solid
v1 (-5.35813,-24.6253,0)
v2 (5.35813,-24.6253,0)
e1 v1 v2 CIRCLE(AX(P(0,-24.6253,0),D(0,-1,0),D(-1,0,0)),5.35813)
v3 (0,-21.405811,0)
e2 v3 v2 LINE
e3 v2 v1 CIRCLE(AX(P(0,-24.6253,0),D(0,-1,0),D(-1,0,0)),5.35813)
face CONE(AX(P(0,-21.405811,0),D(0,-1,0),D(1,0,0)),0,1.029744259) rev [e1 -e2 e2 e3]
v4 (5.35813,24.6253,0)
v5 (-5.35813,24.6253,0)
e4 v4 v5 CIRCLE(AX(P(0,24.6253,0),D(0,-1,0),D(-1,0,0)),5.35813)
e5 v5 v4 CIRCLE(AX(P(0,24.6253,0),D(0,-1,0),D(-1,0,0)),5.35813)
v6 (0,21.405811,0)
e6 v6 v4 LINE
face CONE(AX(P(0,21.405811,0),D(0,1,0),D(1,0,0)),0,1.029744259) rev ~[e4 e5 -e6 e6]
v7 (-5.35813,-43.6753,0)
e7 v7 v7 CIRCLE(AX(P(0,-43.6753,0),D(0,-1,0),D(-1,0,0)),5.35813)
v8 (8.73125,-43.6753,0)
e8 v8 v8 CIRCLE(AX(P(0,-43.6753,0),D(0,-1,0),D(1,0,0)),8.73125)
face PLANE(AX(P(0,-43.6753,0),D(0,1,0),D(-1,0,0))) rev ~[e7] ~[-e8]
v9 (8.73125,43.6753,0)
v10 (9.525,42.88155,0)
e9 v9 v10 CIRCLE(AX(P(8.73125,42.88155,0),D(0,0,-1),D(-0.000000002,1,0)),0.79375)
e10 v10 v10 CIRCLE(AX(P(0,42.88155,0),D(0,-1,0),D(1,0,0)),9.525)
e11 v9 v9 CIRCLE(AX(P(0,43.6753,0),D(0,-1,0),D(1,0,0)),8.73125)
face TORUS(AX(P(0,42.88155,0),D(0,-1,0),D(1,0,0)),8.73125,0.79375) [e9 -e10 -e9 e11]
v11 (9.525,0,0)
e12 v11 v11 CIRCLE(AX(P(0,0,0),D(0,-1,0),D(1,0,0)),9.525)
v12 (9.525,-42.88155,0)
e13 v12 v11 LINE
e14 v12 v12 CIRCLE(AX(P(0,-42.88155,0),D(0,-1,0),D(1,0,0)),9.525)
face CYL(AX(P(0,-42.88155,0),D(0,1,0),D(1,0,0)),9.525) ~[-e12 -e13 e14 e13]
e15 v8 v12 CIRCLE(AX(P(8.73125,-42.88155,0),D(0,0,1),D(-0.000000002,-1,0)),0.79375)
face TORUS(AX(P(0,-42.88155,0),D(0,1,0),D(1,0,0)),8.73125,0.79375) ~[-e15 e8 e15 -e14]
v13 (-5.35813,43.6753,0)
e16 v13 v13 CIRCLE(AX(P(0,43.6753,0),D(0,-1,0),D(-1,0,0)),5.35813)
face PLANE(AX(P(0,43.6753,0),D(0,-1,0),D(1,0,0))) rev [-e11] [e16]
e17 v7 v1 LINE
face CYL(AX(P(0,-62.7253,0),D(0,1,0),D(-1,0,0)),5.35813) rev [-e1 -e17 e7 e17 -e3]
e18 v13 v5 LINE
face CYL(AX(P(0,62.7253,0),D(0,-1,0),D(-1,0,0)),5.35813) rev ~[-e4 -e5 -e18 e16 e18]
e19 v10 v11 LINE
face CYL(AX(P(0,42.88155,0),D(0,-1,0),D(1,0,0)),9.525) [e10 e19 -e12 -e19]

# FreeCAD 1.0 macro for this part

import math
import FreeCAD as App
import Part
import Sketcher

V = App.Vector
Q = App.Units.Quantity

doc = App.newDocument("Part")
body = doc.addObject("PartDesign::Body", "Body")

# Sketch on XY plane
sketch1 = body.newObject("Sketcher::SketchObject", "Sketch")
sketch1.AttachmentSupport = (doc.getObject("XY_Plane"), [""])
sketch1.MapMode = "FlatFace"
sketch1.addGeometry(Part.LineSegment(V(0, 43.6753, 0), V(0, 0, 0)), False)
sketch1.addGeometry(Part.LineSegment(V(0, 0, 0), V(9.525, 0, 0)), False)
sketch1.addGeometry(Part.LineSegment(V(9.525, 0, 0), V(9.525, 42.88155, 0)), False)
sketch1.addGeometry(Part.ArcOfCircle(Part.Circle(V(8.73125, 42.88155, 0), V(0, 0, 1), 0.79375), math.radians(0), math.radians(90)), False)
sketch1.addGeometry(Part.LineSegment(V(8.73125, 43.6753, 0), V(0, 43.6753, 0)), False)
sketch1.addConstraint(Sketcher.Constraint("Coincident", 0, 2, 1, 1))
sketch1.addConstraint(Sketcher.Constraint("Coincident", 1, 2, 2, 1))
sketch1.addConstraint(Sketcher.Constraint("Tangent", 2, 2, 3, 1))
sketch1.addConstraint(Sketcher.Constraint("Tangent", 3, 2, 4, 1))
sketch1.addConstraint(Sketcher.Constraint("Coincident", 4, 2, 0, 1))
sketch1.addConstraint(Sketcher.Constraint("Vertical", 0))
sketch1.addConstraint(Sketcher.Constraint("Horizontal", 1))
sketch1.addConstraint(Sketcher.Constraint("Vertical", 2))
sketch1.addConstraint(Sketcher.Constraint("Horizontal", 4))
sketch1.addConstraint(Sketcher.Constraint("Coincident", 0, 2, -1, 1))
sketch1.addConstraint(Sketcher.Constraint("Radius", 3, Q("0.03125 in")))
sketch1.addConstraint(Sketcher.Constraint("DistanceX", 1, 1, 1, 2, Q("0.375 in")))
sketch1.addConstraint(Sketcher.Constraint("DistanceY", 0, 2, 0, 1, Q("1.7195 in")))
revolution = body.newObject("PartDesign::Revolution", "Revolution")
revolution.Profile = sketch1
revolution.ReferenceAxis = (sketch1, ["V_Axis"])
revolution.Angle = 360

# Sketch on XZ plane
sketch2 = body.newObject("Sketcher::SketchObject", "Sketch001")
sketch2.AttachmentSupport = (doc.getObject("XZ_Plane"), [""])
sketch2.MapMode = "FlatFace"
sketch2.AttachmentOffset = App.Placement(V(0, 0, -1.7195 * 25.4), App.Rotation())
sketch2.addGeometry(Part.Circle(V(0, 0, 0), V(0, 0, 1), 5.35813), False)
sketch2.addConstraint(Sketcher.Constraint("Coincident", 0, 3, -1, 1))
sketch2.addConstraint(Sketcher.Constraint("Diameter", 0, Q("0.4219 in")))
doc.recompute()
hole = body.newObject("PartDesign::Hole", "Hole")
hole.Profile = sketch2
hole.ThreadType = "None"
hole.Diameter = Q("0.4219 in")
hole.DepthType = "Dimension"
hole.Depth = Q("0.75 in")
hole.DrillPoint = "Angled"
hole.DrillPointAngle = 118
hole.Reversed = True
body2 = doc.addObject("PartDesign::Body", "Body001")
doc.recompute()

body2.BaseFeature = body
doc.recompute()

mirroring = doc.addObject("Part::Mirroring", "Mirroring")
mirroring.Source = body
mirroring.Base = V(0, 0, 0)
mirroring.Normal = V(0, 1, 0)
body3 = doc.addObject("PartDesign::Body", "Body002")
body3.BaseFeature = mirroring
boolean = body2.newObject("PartDesign::Boolean", "Boolean")
boolean.Type = "Fuse"
boolean.addObjects([body3])
doc.recompute()
mirroring.Visibility = False

doc.recompute()
